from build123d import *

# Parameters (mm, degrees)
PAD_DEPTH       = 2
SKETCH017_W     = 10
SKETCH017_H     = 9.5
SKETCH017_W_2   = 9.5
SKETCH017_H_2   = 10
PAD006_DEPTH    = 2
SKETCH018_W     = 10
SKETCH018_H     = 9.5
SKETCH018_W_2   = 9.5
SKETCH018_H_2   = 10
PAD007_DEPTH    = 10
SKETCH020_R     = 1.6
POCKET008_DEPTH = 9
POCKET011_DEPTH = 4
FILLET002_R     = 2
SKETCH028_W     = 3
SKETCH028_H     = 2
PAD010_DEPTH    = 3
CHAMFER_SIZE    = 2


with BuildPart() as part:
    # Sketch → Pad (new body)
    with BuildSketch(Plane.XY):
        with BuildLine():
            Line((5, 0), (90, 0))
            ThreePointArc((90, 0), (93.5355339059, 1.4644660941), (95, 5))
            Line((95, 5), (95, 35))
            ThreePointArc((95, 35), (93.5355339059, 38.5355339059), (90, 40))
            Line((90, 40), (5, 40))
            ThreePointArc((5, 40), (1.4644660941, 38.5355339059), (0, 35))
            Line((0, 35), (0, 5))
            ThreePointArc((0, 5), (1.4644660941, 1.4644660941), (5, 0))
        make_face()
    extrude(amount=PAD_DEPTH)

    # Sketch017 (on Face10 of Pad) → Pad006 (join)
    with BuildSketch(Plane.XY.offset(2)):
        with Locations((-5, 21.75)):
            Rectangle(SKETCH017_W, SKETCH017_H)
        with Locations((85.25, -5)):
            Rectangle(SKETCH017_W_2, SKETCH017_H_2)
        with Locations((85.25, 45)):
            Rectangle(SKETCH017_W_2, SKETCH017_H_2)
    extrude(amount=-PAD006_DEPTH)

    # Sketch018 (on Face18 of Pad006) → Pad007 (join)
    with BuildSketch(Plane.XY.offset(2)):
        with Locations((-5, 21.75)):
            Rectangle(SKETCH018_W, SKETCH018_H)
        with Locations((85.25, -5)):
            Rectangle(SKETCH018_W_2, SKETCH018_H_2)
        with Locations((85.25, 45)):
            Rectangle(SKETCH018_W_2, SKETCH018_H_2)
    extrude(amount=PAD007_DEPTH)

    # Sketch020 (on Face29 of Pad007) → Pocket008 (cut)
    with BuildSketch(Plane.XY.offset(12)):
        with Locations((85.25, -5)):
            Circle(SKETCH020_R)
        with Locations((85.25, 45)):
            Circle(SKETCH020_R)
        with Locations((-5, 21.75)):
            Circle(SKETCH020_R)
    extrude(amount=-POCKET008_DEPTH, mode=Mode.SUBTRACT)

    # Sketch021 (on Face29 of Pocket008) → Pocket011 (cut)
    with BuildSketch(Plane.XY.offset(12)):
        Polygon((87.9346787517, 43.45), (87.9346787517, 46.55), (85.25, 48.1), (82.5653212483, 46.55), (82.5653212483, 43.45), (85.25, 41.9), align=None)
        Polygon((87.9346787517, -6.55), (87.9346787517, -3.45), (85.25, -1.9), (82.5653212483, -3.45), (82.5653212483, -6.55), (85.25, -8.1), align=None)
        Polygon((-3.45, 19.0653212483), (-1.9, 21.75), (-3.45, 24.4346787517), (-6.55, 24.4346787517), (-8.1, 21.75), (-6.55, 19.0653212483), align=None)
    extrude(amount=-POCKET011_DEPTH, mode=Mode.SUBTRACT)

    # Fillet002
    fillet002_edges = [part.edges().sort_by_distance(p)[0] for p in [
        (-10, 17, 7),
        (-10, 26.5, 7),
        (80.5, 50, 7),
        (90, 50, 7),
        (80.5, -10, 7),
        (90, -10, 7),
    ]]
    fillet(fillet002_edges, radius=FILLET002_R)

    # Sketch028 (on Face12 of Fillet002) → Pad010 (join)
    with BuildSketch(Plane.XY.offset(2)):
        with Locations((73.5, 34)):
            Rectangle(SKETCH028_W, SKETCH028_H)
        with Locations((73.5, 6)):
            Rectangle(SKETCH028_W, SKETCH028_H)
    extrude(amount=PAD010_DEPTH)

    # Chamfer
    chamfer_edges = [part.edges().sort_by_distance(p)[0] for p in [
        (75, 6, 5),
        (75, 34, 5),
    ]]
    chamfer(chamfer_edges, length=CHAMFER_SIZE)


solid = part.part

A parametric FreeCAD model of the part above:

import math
import FreeCAD as App
import Part
import Sketcher
Q = App.Units.Quantity


def edges_at(feature, points):
    """Names of the edges that pass closest to the given points."""
    edges = feature.Shape.Edges
    near = lambda p: min(range(len(edges)), key=lambda i: edges[i].distToShape(Part.Vertex(*p))[0])
    return sorted({f"Edge{near(p) + 1}" for p in points})


def add_polygon(sketch, points):
    """Adds a closed chain of lines whose ends are joined by coincident constraints."""
    first, n = sketch.GeometryCount, len(points)
    for a, b in zip(points, points[1:] + points[:1]):
        sketch.addGeometry(Part.LineSegment(App.Vector(*a, 0), App.Vector(*b, 0)), False)
    for i in range(n):
        sketch.addConstraint(Sketcher.Constraint("Coincident", first + i, 2, first + (i + 1) % n, 1))

doc = App.newDocument("Part")
params = doc.addObject("Spreadsheet::Sheet", "Params")
for row, (alias, value) in enumerate([
    ("sketch1_radius", "5 mm"),
    ("sketch1_width", "85 mm"),
    ("sketch1_height", "30 mm"),
    ("pad1_length", "2 mm"),
    ("sketch2_width", "10 mm"),
    ("sketch2_width2", "9.5 mm"),
    ("pad2_length", "2 mm"),
    ("sketch3_width", "10 mm"),
    ("sketch3_width2", "9.5 mm"),
    ("pad3_length", "10 mm"),
    ("sketch4_diameter", "3.2 mm"),
    ("pocket1_length", "9 mm"),
    ("sketch5_width", "3.1 mm"),
    ("sketch5_length", "3.1 mm"),
    ("pocket2_length", "4 mm"),
    ("fillet_radius", "2 mm"),
    ("sketch6_width", "3 mm"),
    ("sketch6_height", "2 mm"),
    ("pad4_length", "3 mm"),
    ("chamfer_size", "2 mm"),
], start=1):
    params.set(f"A{row}", alias)
    params.set(f"B{row}", "=" + value)
    params.setAlias(f"B{row}", alias)

body = doc.addObject("PartDesign::Body", "Body")

# Sketch on XY plane
sketch1 = body.newObject("Sketcher::SketchObject", "Sketch")
sketch1.AttachmentSupport = (doc.getObject("XY_Plane"), [""])
sketch1.MapMode = "FlatFace"
sketch1.addGeometry([
    Part.LineSegment(App.Vector(5, 0, 0), App.Vector(90, 0, 0)),  # 0
    Part.ArcOfCircle(Part.Circle(App.Vector(90, 5, 0), App.Vector(0, 0, 1), 5), math.radians(-90), math.radians(0)),  # 1
    Part.LineSegment(App.Vector(95, 5, 0), App.Vector(95, 35, 0)),  # 2
    Part.ArcOfCircle(Part.Circle(App.Vector(90, 35, 0), App.Vector(0, 0, 1), 5), math.radians(0), math.radians(90)),  # 3
    Part.LineSegment(App.Vector(90, 40, 0), App.Vector(5, 40, 0)),  # 4
    Part.ArcOfCircle(Part.Circle(App.Vector(5, 35, 0), App.Vector(0, 0, 1), 5), math.radians(90), math.radians(180)),  # 5
    Part.LineSegment(App.Vector(0, 35, 0), App.Vector(0, 5, 0)),  # 6
    Part.ArcOfCircle(Part.Circle(App.Vector(5, 5, 0), App.Vector(0, 0, 1), 5), math.radians(180), math.radians(270)),  # 7
], False)
sketch1.addConstraint([
    Sketcher.Constraint("Tangent", 0, 2, 1, 1),
    Sketcher.Constraint("Tangent", 1, 2, 2, 1),
    Sketcher.Constraint("Tangent", 2, 2, 3, 1),
    Sketcher.Constraint("Tangent", 3, 2, 4, 1),
    Sketcher.Constraint("Tangent", 4, 2, 5, 1),
    Sketcher.Constraint("Tangent", 5, 2, 6, 1),
    Sketcher.Constraint("Tangent", 6, 2, 7, 1),
    Sketcher.Constraint("Tangent", 7, 2, 0, 1),
    Sketcher.Constraint("Horizontal", 0),
    Sketcher.Constraint("Vertical", 2),
    Sketcher.Constraint("Horizontal", 4),
    Sketcher.Constraint("Vertical", 6),
    Sketcher.Constraint("Equal", 1, 3),
    Sketcher.Constraint("Equal", 3, 5),
    Sketcher.Constraint("Equal", 5, 7),
    Sketcher.Constraint("PointOnObject", 0, 2, -1),
    Sketcher.Constraint("PointOnObject", 5, 2, -2),
    Sketcher.Constraint("Radius", 1, 5.0),
    Sketcher.Constraint("DistanceX", 0, 1, 0, 2, 85.0),
    Sketcher.Constraint("DistanceY", 2, 1, 2, 2, 30.0),
])
sketch1.setExpression("Constraints[17]", "Params.sketch1_radius")
sketch1.setExpression("Constraints[18]", "Params.sketch1_width")
sketch1.setExpression("Constraints[19]", "Params.sketch1_height")
pad1 = body.newObject("PartDesign::Pad", "Pad")
pad1.Profile = sketch1
pad1.setExpression("Length", "Params.pad1_length")

# Sketch on XY plane
sketch2 = body.newObject("Sketcher::SketchObject", "Sketch001")
sketch2.AttachmentSupport = (doc.getObject("XY_Plane"), [""])
sketch2.MapMode = "FlatFace"
sketch2.AttachmentOffset = App.Placement(App.Vector(0, 0, 2), App.Rotation())
add_polygon(sketch2, [(-10, 26), (-10, 17), (0, 17), (0, 26)])  # lines 0-3
add_polygon(sketch2, [(80, 0), (80, -10), (90, -10), (90, 0)])  # lines 4-7
add_polygon(sketch2, [(80, 50), (80, 40), (90, 40), (90, 50)])  # lines 8-11
sketch2.addConstraint([
    Sketcher.Constraint("Vertical", 0),
    Sketcher.Constraint("Horizontal", 1),
    Sketcher.Constraint("Vertical", 2),
    Sketcher.Constraint("Horizontal", 3),
    Sketcher.Constraint("Vertical", 4),
    Sketcher.Constraint("Horizontal", 5),
    Sketcher.Constraint("Vertical", 6),
    Sketcher.Constraint("Horizontal", 7),
    Sketcher.Constraint("Vertical", 8),
    Sketcher.Constraint("Horizontal", 9),
    Sketcher.Constraint("Vertical", 10),
    Sketcher.Constraint("Horizontal", 11),
    Sketcher.Constraint("PointOnObject", 1, 2, -2),
    Sketcher.Constraint("PointOnObject", 6, 2, -1),
    Sketcher.Constraint("Vertical", 7, 2, 8, 2),
    Sketcher.Constraint("Vertical", 6, 2, 9, 2),
    Sketcher.Constraint("Equal", 11, 0),
    Sketcher.Constraint("Equal", 3, 4),
    Sketcher.Constraint("Equal", 6, 8),
    Sketcher.Constraint("DistanceX", 1, 1, 1, 2, 10.0),
    Sketcher.Constraint("DistanceX", 5, 1, 5, 2, 9.5),
    Sketcher.Constraint("DistanceY", -1, 1, 0, 2, 17.0),
    Sketcher.Constraint("DistanceX", -1, 1, 5, 2, 90.0),
    Sketcher.Constraint("DistanceY", -1, 1, 8, 2, 40.0),
])
sketch2.setExpression("Constraints[31]", "Params.sketch2_width")
sketch2.setExpression("Constraints[32]", "Params.sketch2_width2")
pad2 = body.newObject("PartDesign::Pad", "Pad001")
pad2.Profile = sketch2
pad2.setExpression("Length", "Params.pad2_length")
pad2.Reversed = True

# Sketch on XY plane
sketch3 = body.newObject("Sketcher::SketchObject", "Sketch002")
sketch3.AttachmentSupport = (doc.getObject("XY_Plane"), [""])
sketch3.MapMode = "FlatFace"
sketch3.AttachmentOffset = App.Placement(App.Vector(0, 0, 2), App.Rotation())
add_polygon(sketch3, [(-10, 26), (-10, 17), (0, 17), (0, 26)])  # lines 0-3
add_polygon(sketch3, [(80, 0), (80, -10), (90, -10), (90, 0)])  # lines 4-7
add_polygon(sketch3, [(80, 50), (80, 40), (90, 40), (90, 50)])  # lines 8-11
sketch3.addConstraint([
    Sketcher.Constraint("Vertical", 0),
    Sketcher.Constraint("Horizontal", 1),
    Sketcher.Constraint("Vertical", 2),
    Sketcher.Constraint("Horizontal", 3),
    Sketcher.Constraint("Vertical", 4),
    Sketcher.Constraint("Horizontal", 5),
    Sketcher.Constraint("Vertical", 6),
    Sketcher.Constraint("Horizontal", 7),
    Sketcher.Constraint("Vertical", 8),
    Sketcher.Constraint("Horizontal", 9),
    Sketcher.Constraint("Vertical", 10),
    Sketcher.Constraint("Horizontal", 11),
    Sketcher.Constraint("PointOnObject", 1, 2, -2),
    Sketcher.Constraint("PointOnObject", 6, 2, -1),
    Sketcher.Constraint("Vertical", 7, 2, 8, 2),
    Sketcher.Constraint("Vertical", 6, 2, 9, 2),
    Sketcher.Constraint("Equal", 11, 0),
    Sketcher.Constraint("Equal", 3, 4),
    Sketcher.Constraint("Equal", 6, 8),
    Sketcher.Constraint("DistanceX", 1, 1, 1, 2, 10.0),
    Sketcher.Constraint("DistanceX", 5, 1, 5, 2, 9.5),
    Sketcher.Constraint("DistanceY", -1, 1, 0, 2, 17.0),
    Sketcher.Constraint("DistanceX", -1, 1, 5, 2, 90.0),
    Sketcher.Constraint("DistanceY", -1, 1, 8, 2, 40.0),
])
sketch3.setExpression("Constraints[31]", "Params.sketch3_width")
sketch3.setExpression("Constraints[32]", "Params.sketch3_width2")
pad3 = body.newObject("PartDesign::Pad", "Pad002")
pad3.Profile = sketch3
pad3.setExpression("Length", "Params.pad3_length")

# Sketch on XY plane
sketch4 = body.newObject("Sketcher::SketchObject", "Sketch003")
sketch4.AttachmentSupport = (doc.getObject("XY_Plane"), [""])
sketch4.MapMode = "FlatFace"
sketch4.AttachmentOffset = App.Placement(App.Vector(0, 0, 12), App.Rotation())
sketch4.addGeometry([
    Part.Circle(App.Vector(85.2, -5, 0), App.Vector(0, 0, 1), 1.6),
    Part.Circle(App.Vector(85.2, 45, 0), App.Vector(0, 0, 1), 1.6),
    Part.Circle(App.Vector(-5, 21.8, 0), App.Vector(0, 0, 1), 1.6),
], False)
sketch4.addConstraint([
    Sketcher.Constraint("Equal", 0, 1),
    Sketcher.Constraint("Equal", 1, 2),
    Sketcher.Constraint("Vertical", 0, 3, 1, 3),
    Sketcher.Constraint("Diameter", 0, 3.2),
    Sketcher.Constraint("DistanceY", 0, 3, -1, 1, 5.0),
    Sketcher.Constraint("DistanceY", -1, 1, 1, 3, 45.0),
    Sketcher.Constraint("DistanceX", 2, 3, -1, 1, 5.0),
    Sketcher.Constraint("DistanceX", -1, 1, 0, 3, 85.25),
    Sketcher.Constraint("DistanceY", -1, 1, 2, 3, 21.75),
])
sketch4.setExpression("Constraints[3]", "Params.sketch4_diameter")
pocket1 = body.newObject("PartDesign::Pocket", "Pocket")
pocket1.Profile = sketch4
pocket1.setExpression("Length", "Params.pocket1_length")

# Sketch on XY plane
sketch5 = body.newObject("Sketcher::SketchObject", "Sketch004")
sketch5.AttachmentSupport = (doc.getObject("XY_Plane"), [""])
sketch5.MapMode = "FlatFace"
sketch5.AttachmentOffset = App.Placement(App.Vector(0, 0, 12), App.Rotation())
add_polygon(sketch5, [(87.9, 43.5), (87.9, 46.5), (85.2, 48.1), (82.6, 46.5), (82.6, 43.5), (85.2, 41.9)])  # lines 0-5
add_polygon(sketch5, [(87.9, -6.5), (87.9, -3.5), (85.2, -1.9), (82.6, -3.5), (82.6, -6.5), (85.2, -8.1)])  # lines 6-11
add_polygon(sketch5, [(-3.5, 19.1), (-1.9, 21.8), (-3.5, 24.4), (-6.5, 24.4), (-8.1, 21.8), (-6.5, 19.1)])  # lines 12-17
sketch5.addConstraint([
    Sketcher.Constraint("Vertical", 0),
    Sketcher.Constraint("Vertical", 3),
    Sketcher.Constraint("Vertical", 6),
    Sketcher.Constraint("Vertical", 9),
    Sketcher.Constraint("Horizontal", 14),
    Sketcher.Constraint("Horizontal", 17),
    Sketcher.Constraint("Parallel", 1, 4),
    Sketcher.Constraint("Parallel", 2, 5),
    Sketcher.Constraint("Parallel", 4, 7),
    Sketcher.Constraint("Parallel", 5, 8),
    Sketcher.Constraint("Parallel", 7, 10),
    Sketcher.Constraint("Parallel", 8, 11),
    Sketcher.Constraint("Perpendicular", 10, 12),
    Sketcher.Constraint("Perpendicular", 11, 13),
    Sketcher.Constraint("Parallel", 12, 15),
    Sketcher.Constraint("Parallel", 13, 16),
    Sketcher.Constraint("Horizontal", 0, 2, 2, 2),
    Sketcher.Constraint("Horizontal", 3, 2, 5, 2),
    Sketcher.Constraint("Horizontal", 6, 2, 8, 2),
    Sketcher.Constraint("Horizontal", 9, 2, 11, 2),
    Sketcher.Constraint("Horizontal", 12, 2, 15, 2),
    Sketcher.Constraint("Vertical", 1, 2, 4, 2),
    Sketcher.Constraint("Vertical", 5, 2, 6, 2),
    Sketcher.Constraint("Vertical", 4, 2, 7, 2),
    Sketcher.Constraint("Vertical", 14, 2, 16, 2),
    Sketcher.Constraint("Equal", 17, 0),
    Sketcher.Constraint("Equal", 3, 6),
    Sketcher.Constraint("Equal", 11, 12),
    Sketcher.Constraint("Angle", 1, Q("150 deg")),
    Sketcher.Constraint("DistanceX", 14, 2, 14, 1, 3.1),
    Sketcher.Constraint("DistanceY", 6, 2, 0, 2, 50.0),
    Sketcher.Constraint("Distance", 1, 3.1),
    Sketcher.Constraint("DistanceY", -1, 1, 1, 2, 48.1),
    Sketcher.Constraint("DistanceX", 12, 2, -1, 1, 1.9),
    Sketcher.Constraint("DistanceY", 12, 2, 3, 2, 21.7),
    Sketcher.Constraint("DistanceX", 13, 2, 4, 2, 88.7),
])
sketch5.setExpression("Constraints[47]", "Params.sketch5_width")
sketch5.setExpression("Constraints[49]", "Params.sketch5_length")
pocket2 = body.newObject("PartDesign::Pocket", "Pocket001")
pocket2.Profile = sketch5
pocket2.setExpression("Length", "Params.pocket2_length")
doc.recompute()

fillet = body.newObject("PartDesign::Fillet", "Fillet")
fillet.Base = (pocket2, edges_at(pocket2, [
    (-10, 17, 6),
    (-10, 26.5, 6),
    (80.5, 50, 6),
    (90, 50, 6),
    (80.5, -10, 6),
    (90, -10, 6),
]))
fillet.setExpression("Radius", "Params.fillet_radius")

# Sketch on XY plane
sketch6 = body.newObject("Sketcher::SketchObject", "Sketch005")
sketch6.AttachmentSupport = (doc.getObject("XY_Plane"), [""])
sketch6.MapMode = "FlatFace"
sketch6.AttachmentOffset = App.Placement(App.Vector(0, 0, 2), App.Rotation())
add_polygon(sketch6, [(72, 35), (72, 33), (75, 33), (75, 35)])  # lines 0-3
add_polygon(sketch6, [(72, 7), (72, 5), (75, 5), (75, 7)])  # lines 4-7
sketch6.addConstraint([
    Sketcher.Constraint("Vertical", 0),
    Sketcher.Constraint("Horizontal", 1),
    Sketcher.Constraint("Vertical", 2),
    Sketcher.Constraint("Horizontal", 3),
    Sketcher.Constraint("Vertical", 4),
    Sketcher.Constraint("Horizontal", 5),
    Sketcher.Constraint("Vertical", 6),
    Sketcher.Constraint("Horizontal", 7),
    Sketcher.Constraint("Vertical", 3, 2, 4, 2),
    Sketcher.Constraint("Vertical", 2, 2, 5, 2),
    Sketcher.Constraint("Equal", 2, 4),
    Sketcher.Constraint("DistanceX", 1, 1, 1, 2, 3.0),
    Sketcher.Constraint("DistanceY", 0, 2, 0, 1, 2.0),
    Sketcher.Constraint("DistanceX", -1, 1, 0, 2, 72.0),
    Sketcher.Constraint("DistanceY", -1, 1, 0, 2, 33.0),
    Sketcher.Constraint("DistanceY", -1, 1, 4, 2, 5.0),
])
sketch6.setExpression("Constraints[19]", "Params.sketch6_width")
sketch6.setExpression("Constraints[20]", "Params.sketch6_height")
pad4 = body.newObject("PartDesign::Pad", "Pad003")
pad4.Profile = sketch6
pad4.setExpression("Length", "Params.pad4_length")
doc.recompute()

chamfer = body.newObject("PartDesign::Chamfer", "Chamfer")
chamfer.Base = (pad4, edges_at(pad4, [(75, 6, 5), (75, 34, 5)]))
chamfer.setExpression("Size", "Params.chamfer_size")

doc.recompute()
